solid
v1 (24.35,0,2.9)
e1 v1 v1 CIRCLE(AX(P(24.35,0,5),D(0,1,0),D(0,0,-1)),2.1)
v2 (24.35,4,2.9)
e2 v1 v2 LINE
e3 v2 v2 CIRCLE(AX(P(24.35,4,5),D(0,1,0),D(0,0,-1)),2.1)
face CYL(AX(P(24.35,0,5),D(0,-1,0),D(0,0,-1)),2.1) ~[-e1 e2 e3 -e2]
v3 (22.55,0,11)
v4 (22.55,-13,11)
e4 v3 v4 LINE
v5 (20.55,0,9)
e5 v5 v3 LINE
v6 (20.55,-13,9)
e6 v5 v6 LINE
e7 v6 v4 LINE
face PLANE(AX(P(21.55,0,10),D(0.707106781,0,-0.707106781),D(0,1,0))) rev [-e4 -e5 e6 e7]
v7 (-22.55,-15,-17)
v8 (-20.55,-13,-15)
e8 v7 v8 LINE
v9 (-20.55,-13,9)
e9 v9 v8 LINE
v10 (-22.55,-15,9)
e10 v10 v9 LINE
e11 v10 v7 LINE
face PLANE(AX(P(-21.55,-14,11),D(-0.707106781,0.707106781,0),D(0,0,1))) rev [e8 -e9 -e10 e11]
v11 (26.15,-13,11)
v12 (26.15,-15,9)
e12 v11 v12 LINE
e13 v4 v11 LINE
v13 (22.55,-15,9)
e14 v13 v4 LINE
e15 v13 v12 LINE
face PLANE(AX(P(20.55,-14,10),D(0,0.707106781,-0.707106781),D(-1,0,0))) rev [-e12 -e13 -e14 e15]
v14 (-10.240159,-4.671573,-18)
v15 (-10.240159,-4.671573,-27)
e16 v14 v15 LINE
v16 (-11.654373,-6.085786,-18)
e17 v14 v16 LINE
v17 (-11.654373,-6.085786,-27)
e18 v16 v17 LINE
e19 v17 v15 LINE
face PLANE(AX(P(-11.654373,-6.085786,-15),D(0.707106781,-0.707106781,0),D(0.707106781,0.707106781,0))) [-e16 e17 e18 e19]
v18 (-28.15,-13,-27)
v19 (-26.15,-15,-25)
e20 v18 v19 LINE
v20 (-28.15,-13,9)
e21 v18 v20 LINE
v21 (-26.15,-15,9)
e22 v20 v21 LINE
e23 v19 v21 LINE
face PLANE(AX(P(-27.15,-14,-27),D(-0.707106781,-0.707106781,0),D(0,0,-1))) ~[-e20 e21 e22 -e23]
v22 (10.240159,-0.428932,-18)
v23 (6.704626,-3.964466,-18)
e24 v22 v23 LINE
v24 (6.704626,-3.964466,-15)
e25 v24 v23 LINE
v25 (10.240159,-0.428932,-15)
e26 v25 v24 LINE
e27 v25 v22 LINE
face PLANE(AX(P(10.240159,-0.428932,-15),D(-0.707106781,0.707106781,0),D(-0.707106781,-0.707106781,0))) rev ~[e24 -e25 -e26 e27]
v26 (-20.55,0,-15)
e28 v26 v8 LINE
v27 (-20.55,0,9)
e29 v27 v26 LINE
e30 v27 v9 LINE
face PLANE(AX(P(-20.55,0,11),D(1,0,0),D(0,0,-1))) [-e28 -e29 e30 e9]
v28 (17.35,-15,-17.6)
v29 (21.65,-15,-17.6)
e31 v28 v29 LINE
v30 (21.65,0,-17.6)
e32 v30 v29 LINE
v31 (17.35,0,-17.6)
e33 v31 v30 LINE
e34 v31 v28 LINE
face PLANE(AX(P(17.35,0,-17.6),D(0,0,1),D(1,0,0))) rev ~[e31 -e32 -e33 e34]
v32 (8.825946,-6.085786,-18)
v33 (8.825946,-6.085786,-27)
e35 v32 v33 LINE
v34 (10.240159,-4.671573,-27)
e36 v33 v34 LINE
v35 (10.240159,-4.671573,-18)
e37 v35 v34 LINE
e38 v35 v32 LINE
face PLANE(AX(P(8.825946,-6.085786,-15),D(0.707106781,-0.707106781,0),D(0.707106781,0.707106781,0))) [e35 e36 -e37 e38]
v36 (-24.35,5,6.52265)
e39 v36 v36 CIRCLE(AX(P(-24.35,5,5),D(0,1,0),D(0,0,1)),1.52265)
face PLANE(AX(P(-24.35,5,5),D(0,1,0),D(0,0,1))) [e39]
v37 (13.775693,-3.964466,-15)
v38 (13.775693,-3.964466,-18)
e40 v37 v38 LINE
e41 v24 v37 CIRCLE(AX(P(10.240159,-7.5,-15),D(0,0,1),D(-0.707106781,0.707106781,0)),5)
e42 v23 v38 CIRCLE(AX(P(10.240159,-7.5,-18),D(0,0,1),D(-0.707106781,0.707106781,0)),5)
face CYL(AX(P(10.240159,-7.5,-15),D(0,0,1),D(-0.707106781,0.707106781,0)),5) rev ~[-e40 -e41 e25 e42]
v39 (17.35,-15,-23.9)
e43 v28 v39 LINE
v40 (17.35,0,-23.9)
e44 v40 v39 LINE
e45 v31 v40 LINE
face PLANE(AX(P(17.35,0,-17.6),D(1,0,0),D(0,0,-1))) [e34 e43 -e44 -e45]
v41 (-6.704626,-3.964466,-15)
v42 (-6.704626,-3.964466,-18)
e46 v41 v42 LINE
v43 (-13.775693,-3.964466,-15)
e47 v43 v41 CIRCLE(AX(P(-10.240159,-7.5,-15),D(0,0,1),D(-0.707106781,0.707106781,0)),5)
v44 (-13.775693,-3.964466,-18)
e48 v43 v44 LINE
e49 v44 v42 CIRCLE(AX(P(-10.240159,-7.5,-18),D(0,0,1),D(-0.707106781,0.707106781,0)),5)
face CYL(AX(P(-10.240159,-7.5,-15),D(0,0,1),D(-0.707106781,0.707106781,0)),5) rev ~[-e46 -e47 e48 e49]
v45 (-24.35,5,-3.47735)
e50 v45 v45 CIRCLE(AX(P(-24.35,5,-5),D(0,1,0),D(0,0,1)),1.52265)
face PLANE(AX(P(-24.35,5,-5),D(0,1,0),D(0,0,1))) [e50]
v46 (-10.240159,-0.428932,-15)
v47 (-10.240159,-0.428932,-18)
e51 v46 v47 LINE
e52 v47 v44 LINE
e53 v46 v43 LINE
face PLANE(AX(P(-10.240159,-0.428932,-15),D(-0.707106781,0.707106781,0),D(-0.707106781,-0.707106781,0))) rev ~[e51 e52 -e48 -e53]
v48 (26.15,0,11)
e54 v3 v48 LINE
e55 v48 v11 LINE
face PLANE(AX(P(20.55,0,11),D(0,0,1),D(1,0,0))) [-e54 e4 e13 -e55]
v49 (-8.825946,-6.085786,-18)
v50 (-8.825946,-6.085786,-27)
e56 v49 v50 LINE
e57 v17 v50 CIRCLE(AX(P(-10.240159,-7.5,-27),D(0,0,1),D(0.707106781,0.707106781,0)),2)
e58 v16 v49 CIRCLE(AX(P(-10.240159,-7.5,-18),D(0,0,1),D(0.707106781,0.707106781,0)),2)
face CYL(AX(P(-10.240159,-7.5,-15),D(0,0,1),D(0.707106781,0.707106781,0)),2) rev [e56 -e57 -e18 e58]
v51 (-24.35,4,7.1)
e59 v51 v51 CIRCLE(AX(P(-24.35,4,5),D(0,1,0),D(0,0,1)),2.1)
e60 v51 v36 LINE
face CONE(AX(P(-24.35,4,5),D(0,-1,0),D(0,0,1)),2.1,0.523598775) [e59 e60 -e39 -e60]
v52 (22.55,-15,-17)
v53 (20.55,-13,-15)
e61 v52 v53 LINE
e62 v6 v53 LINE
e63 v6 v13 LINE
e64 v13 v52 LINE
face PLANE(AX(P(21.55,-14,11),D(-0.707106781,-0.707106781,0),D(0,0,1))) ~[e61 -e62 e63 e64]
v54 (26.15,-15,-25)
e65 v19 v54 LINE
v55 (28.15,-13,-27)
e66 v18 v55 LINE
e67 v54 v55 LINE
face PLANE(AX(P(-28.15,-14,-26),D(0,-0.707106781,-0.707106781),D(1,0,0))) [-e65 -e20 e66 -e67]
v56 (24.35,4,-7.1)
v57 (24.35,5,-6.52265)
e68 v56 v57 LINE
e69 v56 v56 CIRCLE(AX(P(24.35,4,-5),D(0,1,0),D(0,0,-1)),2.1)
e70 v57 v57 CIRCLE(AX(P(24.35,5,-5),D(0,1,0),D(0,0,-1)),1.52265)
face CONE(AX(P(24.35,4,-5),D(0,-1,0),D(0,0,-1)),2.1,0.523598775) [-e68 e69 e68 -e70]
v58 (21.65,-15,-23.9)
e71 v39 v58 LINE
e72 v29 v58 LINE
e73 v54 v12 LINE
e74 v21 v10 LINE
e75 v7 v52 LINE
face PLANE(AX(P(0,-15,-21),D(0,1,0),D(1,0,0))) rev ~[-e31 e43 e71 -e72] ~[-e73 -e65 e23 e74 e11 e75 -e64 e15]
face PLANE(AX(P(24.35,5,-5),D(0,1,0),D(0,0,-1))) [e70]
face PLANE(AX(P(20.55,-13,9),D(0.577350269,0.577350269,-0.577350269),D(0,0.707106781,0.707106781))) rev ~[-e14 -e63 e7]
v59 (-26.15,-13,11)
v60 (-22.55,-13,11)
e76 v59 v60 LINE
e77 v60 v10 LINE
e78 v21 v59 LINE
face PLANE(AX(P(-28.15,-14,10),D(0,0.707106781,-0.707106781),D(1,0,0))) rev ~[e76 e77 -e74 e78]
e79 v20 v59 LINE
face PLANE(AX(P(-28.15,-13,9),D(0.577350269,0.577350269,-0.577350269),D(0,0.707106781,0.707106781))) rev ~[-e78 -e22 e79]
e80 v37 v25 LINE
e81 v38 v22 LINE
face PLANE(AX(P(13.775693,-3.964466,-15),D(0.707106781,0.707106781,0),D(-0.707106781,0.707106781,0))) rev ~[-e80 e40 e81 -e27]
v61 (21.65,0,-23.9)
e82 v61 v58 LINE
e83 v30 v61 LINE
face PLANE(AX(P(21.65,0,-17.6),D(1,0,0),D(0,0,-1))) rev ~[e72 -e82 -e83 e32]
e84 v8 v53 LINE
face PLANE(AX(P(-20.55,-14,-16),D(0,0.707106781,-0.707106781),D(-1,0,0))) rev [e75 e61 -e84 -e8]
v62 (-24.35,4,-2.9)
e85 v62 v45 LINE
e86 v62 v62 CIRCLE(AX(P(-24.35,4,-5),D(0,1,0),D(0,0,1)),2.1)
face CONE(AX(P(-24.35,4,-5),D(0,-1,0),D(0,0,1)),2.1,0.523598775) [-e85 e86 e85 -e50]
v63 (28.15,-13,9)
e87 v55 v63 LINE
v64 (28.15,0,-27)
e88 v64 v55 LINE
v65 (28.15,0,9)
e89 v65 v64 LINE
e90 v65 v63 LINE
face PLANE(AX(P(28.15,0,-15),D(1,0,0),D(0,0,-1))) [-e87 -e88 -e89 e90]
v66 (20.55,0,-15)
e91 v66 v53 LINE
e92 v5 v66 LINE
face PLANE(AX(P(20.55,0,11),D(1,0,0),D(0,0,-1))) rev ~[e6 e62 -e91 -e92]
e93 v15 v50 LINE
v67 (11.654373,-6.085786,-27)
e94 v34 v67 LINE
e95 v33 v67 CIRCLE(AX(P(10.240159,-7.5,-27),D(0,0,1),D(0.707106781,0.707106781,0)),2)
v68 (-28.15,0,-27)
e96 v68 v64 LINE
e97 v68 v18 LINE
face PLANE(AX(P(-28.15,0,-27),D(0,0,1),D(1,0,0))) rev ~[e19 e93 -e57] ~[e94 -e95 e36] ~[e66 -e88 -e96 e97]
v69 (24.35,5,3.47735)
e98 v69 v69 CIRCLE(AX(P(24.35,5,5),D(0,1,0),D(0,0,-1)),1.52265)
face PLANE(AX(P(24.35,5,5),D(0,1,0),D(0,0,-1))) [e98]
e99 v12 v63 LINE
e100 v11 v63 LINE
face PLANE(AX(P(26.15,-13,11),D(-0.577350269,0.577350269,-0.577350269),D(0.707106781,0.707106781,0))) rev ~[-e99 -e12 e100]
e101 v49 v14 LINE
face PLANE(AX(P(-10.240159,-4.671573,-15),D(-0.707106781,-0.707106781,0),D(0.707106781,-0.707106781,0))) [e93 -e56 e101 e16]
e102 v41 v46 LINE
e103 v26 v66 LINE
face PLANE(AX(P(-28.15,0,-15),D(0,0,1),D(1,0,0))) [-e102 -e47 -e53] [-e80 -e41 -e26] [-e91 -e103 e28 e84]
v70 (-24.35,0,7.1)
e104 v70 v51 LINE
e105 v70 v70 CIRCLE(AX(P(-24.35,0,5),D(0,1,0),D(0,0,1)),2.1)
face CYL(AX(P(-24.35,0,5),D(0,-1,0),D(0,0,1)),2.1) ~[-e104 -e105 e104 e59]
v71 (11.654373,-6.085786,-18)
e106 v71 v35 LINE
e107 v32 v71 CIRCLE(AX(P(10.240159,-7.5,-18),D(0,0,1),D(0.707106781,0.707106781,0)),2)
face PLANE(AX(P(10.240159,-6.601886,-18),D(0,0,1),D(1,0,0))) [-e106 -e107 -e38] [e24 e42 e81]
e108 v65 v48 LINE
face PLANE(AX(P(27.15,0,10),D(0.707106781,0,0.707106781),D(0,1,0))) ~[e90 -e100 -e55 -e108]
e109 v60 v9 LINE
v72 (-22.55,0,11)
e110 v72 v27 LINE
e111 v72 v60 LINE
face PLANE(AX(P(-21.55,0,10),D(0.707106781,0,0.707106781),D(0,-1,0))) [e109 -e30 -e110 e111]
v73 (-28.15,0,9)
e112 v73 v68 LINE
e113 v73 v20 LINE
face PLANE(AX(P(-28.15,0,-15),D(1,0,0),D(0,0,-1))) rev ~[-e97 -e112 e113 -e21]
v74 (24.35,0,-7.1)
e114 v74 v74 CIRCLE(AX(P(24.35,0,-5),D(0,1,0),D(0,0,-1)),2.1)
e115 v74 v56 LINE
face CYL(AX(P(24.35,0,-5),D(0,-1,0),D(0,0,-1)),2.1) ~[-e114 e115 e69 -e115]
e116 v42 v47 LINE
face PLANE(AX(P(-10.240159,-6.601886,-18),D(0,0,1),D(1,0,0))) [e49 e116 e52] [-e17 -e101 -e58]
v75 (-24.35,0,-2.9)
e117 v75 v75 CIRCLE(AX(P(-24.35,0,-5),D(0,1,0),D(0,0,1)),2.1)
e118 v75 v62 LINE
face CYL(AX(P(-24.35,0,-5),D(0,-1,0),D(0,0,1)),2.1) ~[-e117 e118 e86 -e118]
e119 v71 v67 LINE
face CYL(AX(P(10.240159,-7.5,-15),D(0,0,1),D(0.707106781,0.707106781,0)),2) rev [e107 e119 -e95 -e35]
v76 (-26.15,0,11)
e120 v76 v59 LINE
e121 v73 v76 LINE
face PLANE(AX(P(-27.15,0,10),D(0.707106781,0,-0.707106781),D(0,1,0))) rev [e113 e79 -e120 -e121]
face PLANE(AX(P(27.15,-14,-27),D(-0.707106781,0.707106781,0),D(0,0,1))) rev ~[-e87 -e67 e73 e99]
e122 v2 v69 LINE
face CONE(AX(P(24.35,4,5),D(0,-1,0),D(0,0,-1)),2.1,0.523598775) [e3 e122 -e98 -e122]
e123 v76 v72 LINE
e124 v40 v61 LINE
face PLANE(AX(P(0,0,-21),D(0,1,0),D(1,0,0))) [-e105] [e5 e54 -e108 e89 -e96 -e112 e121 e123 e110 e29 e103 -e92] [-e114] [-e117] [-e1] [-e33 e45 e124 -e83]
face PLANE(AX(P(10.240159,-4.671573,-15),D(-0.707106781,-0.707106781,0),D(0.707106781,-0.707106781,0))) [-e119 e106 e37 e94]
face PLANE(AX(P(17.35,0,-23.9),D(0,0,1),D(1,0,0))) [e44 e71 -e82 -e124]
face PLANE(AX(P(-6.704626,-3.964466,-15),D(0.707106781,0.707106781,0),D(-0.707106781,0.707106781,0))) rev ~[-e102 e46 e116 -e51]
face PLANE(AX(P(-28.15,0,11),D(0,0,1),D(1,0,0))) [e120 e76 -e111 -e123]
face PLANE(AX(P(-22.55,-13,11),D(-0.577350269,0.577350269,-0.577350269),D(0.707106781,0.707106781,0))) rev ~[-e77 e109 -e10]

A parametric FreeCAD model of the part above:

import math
import FreeCAD as App
import Part
import Sketcher

V = App.Vector


def edges_at(feature, points):
    """Names of the edges that pass closest to the given points."""
    edges = feature.Shape.Edges
    near = lambda p: min(range(len(edges)), key=lambda i: edges[i].distToShape(Part.Vertex(*p))[0])
    return sorted({f"Edge{near(p) + 1}" for p in points})

doc = App.newDocument("Part")
body = doc.addObject("PartDesign::Body", "Body")

# Sketch on XZ plane
sketch1 = body.newObject("Sketcher::SketchObject", "Sketch")
sketch1.AttachmentSupport = (doc.getObject("XZ_Plane"), [""])
sketch1.MapMode = "FlatFace"
sketch1.addGeometry(Part.Circle(V(-24.4, -5, 0), V(0, 0, 1), 2.1), False)
sketch1.addConstraint([
    Sketcher.Constraint("Diameter", 0, 4.2),
    Sketcher.Constraint("DistanceY", 0, 3, -1, 1, 5.0),
    Sketcher.Constraint("DistanceX", 0, 3, -1, 1, 24.35),
])
pad1 = body.newObject("PartDesign::Pad", "Pad")
pad1.Profile = sketch1
pad1.Length = 5
pad1.Reversed = True
body2 = doc.addObject("PartDesign::Body", "Body001")

# Sketch on XZ plane
sketch2 = body2.newObject("Sketcher::SketchObject", "Sketch001")
sketch2.AttachmentSupport = (doc.getObject("XZ_Plane001"), [""])
sketch2.MapMode = "FlatFace"
sketch2.addGeometry(Part.Circle(V(-24.4, 5, 0), V(0, 0, 1), 2.1), False)
sketch2.addConstraint([
    Sketcher.Constraint("Diameter", 0, 4.2),
    Sketcher.Constraint("DistanceY", -1, 1, 0, 3, 5.0),
    Sketcher.Constraint("DistanceX", 0, 3, -1, 1, 24.35),
])
pad2 = body2.newObject("PartDesign::Pad", "Pad001")
pad2.Profile = sketch2
pad2.Length = 5
pad2.Reversed = True
body3 = doc.addObject("PartDesign::Body", "Body002")

# Sketch on XZ plane
sketch3 = body3.newObject("Sketcher::SketchObject", "Sketch002")
sketch3.AttachmentSupport = (doc.getObject("XZ_Plane002"), [""])
sketch3.MapMode = "FlatFace"
sketch3.addGeometry(Part.Circle(V(24.4, 5, 0), V(0, 0, 1), 2.1), False)
sketch3.addConstraint([
    Sketcher.Constraint("Diameter", 0, 4.2),
    Sketcher.Constraint("DistanceY", -1, 1, 0, 3, 5.0),
    Sketcher.Constraint("DistanceX", -1, 1, 0, 3, 24.35),
])
pad3 = body3.newObject("PartDesign::Pad", "Pad002")
pad3.Profile = sketch3
pad3.Length = 5
pad3.Reversed = True
body4 = doc.addObject("PartDesign::Body", "Body003")

# Sketch on XZ plane
sketch4 = body4.newObject("Sketcher::SketchObject", "Sketch003")
sketch4.AttachmentSupport = (doc.getObject("XZ_Plane003"), [""])
sketch4.MapMode = "FlatFace"
sketch4.addGeometry(Part.Circle(V(24.4, -5, 0), V(0, 0, 1), 2.1), False)
sketch4.addConstraint([
    Sketcher.Constraint("Diameter", 0, 4.2),
    Sketcher.Constraint("DistanceY", 0, 3, -1, 1, 5.0),
    Sketcher.Constraint("DistanceX", -1, 1, 0, 3, 24.35),
])
pad4 = body4.newObject("PartDesign::Pad", "Pad003")
pad4.Profile = sketch4
pad4.Length = 5
pad4.Reversed = True
body.AllowCompound = True
doc.recompute()

boolean = body.newObject("PartDesign::Boolean", "Boolean")
boolean.Type = "Fuse"
boolean.addObjects([body2])
doc.recompute()

boolean2 = body.newObject("PartDesign::Boolean", "Boolean001")
boolean2.Type = "Fuse"
boolean2.addObjects([body3])
doc.recompute()

boolean3 = body.newObject("PartDesign::Boolean", "Boolean002")
boolean3.Type = "Fuse"
boolean3.addObjects([body4])

# Sketch on XZ plane
sketch5 = body.newObject("Sketcher::SketchObject", "Sketch004")
sketch5.AttachmentSupport = (doc.getObject("XZ_Plane"), [""])
sketch5.MapMode = "FlatFace"
sketch5.addGeometry([
    Part.LineSegment(V(-28, -15, 0), V(-28, 11, 0)),  # 0
    Part.LineSegment(V(-28, 11, 0), V(-21, 11, 0)),  # 1
    Part.LineSegment(V(-21, 11, 0), V(-21, -15, 0)),  # 2
    Part.LineSegment(V(-21, -15, 0), V(-28, -15, 0)),  # 3
    Part.LineSegment(V(21, -15, 0), V(21, 11, 0)),  # 4
    Part.LineSegment(V(21, 11, 0), V(28, 11, 0)),  # 5
    Part.LineSegment(V(28, 11, 0), V(28, -15, 0)),  # 6
    Part.LineSegment(V(28, -15, 0), V(21, -15, 0)),  # 7
], False)
sketch5.addConstraint([
    Sketcher.Constraint("Coincident", 0, 2, 1, 1),
    Sketcher.Constraint("Coincident", 1, 2, 2, 1),
    Sketcher.Constraint("Coincident", 2, 2, 3, 1),
    Sketcher.Constraint("Coincident", 3, 2, 0, 1),
    Sketcher.Constraint("Coincident", 4, 2, 5, 1),
    Sketcher.Constraint("Coincident", 5, 2, 6, 1),
    Sketcher.Constraint("Coincident", 6, 2, 7, 1),
    Sketcher.Constraint("Coincident", 7, 2, 4, 1),
    Sketcher.Constraint("Vertical", 0),
    Sketcher.Constraint("Horizontal", 1),
    Sketcher.Constraint("Vertical", 2),
    Sketcher.Constraint("Horizontal", 3),
    Sketcher.Constraint("Vertical", 4),
    Sketcher.Constraint("Horizontal", 5),
    Sketcher.Constraint("Vertical", 6),
    Sketcher.Constraint("Horizontal", 7),
    Sketcher.Constraint("Symmetric", 1, 2, 4, 2, -2),
    Sketcher.Constraint("Symmetric", 3, 2, 6, 2, -2),
    Sketcher.Constraint("DistanceY", 0, 1, 0, 2, 26.0),
    Sketcher.Constraint("DistanceX", 1, 1, 1, 2, 7.6),
    Sketcher.Constraint("DistanceY", -1, 1, 0, 2, 11.0),
    Sketcher.Constraint("DistanceX", 1, 2, 4, 2, 41.1),
])
pad5 = body.newObject("PartDesign::Pad", "Pad004")
pad5.Profile = sketch5
pad5.Length = 15
doc.recompute()

chamfer = body.newObject("PartDesign::Chamfer", "Chamfer")
chamfer.Base = (pad5, edges_at(pad5, [(-24.35, 5, 2.9)]))
chamfer.ChamferType = "Two distances"
chamfer.Size = 1
chamfer.Size2 = 0.57735
doc.recompute()

chamfer2 = body.newObject("PartDesign::Chamfer", "Chamfer001")
chamfer2.Base = (chamfer, edges_at(chamfer, [(-24.35, 5, -7.1)]))
chamfer2.ChamferType = "Two distances"
chamfer2.Size = 1
chamfer2.Size2 = 0.57735
doc.recompute()

chamfer3 = body.newObject("PartDesign::Chamfer", "Chamfer002")
chamfer3.Base = (chamfer2, edges_at(chamfer2, [(24.35, 5, -2.9)]))
chamfer3.ChamferType = "Two distances"
chamfer3.Size = 1
chamfer3.Size2 = 0.57735
doc.recompute()

chamfer4 = body.newObject("PartDesign::Chamfer", "Chamfer003")
chamfer4.Base = (chamfer3, edges_at(chamfer3, [(24.35, 5, 7.1)]))
chamfer4.ChamferType = "Two distances"
chamfer4.Size = 1
chamfer4.Size2 = 0.57735

# Sketch on XZ plane
sketch6 = body.newObject("Sketcher::SketchObject", "Sketch005")
sketch6.AttachmentSupport = (doc.getObject("XZ_Plane"), [""])
sketch6.MapMode = "FlatFace"
sketch6.addGeometry([
    Part.LineSegment(V(-28, -27, 0), V(-28, -15, 0)),
    Part.LineSegment(V(-28, -15, 0), V(28, -15, 0)),
    Part.LineSegment(V(28, -15, 0), V(28, -27, 0)),
    Part.LineSegment(V(28, -27, 0), V(-28, -27, 0)),
], False)
sketch6.addConstraint([
    Sketcher.Constraint("Coincident", 0, 2, 1, 1),
    Sketcher.Constraint("Coincident", 1, 2, 2, 1),
    Sketcher.Constraint("Coincident", 2, 2, 3, 1),
    Sketcher.Constraint("Coincident", 3, 2, 0, 1),
    Sketcher.Constraint("Vertical", 0),
    Sketcher.Constraint("Horizontal", 1),
    Sketcher.Constraint("Vertical", 2),
    Sketcher.Constraint("Horizontal", 3),
    Sketcher.Constraint("DistanceY", 0, 1, 0, 2, 12.0),
    Sketcher.Constraint("DistanceX", 1, 1, 1, 2, 56.3),
    Sketcher.Constraint("DistanceY", 0, 2, -1, 1, 15.0),
    Sketcher.Constraint("DistanceX", 0, 2, -1, 1, 28.15),
])
pad6 = body.newObject("PartDesign::Pad", "Pad005")
pad6.Profile = sketch6
pad6.Length = 15

# Sketch on XY plane
sketch7 = body.newObject("Sketcher::SketchObject", "Sketch006")
sketch7.AttachmentSupport = (doc.getObject("XY_Plane"), [""])
sketch7.MapMode = "FlatFace"
sketch7.AttachmentOffset = App.Placement(V(0, 0, -15), App.Rotation())
sketch7.addGeometry([
    Part.LineSegment(V(-10.2, -4.7, 0), V(-11.7, -6.1, 0)),  # 0
    Part.ArcOfCircle(Part.Circle(V(-10.2, -7.5, 0), V(0, 0, 1), 2), math.radians(135), math.radians(405)),  # 1
    Part.LineSegment(V(-8.8, -6.1, 0), V(-10.2, -4.7, 0)),  # 2
    Part.ArcOfCircle(Part.Circle(V(10.2, -7.5, 0), V(0, 0, 1), 2), math.radians(135), math.radians(405)),  # 3
    Part.LineSegment(V(11.7, -6.1, 0), V(10.2, -4.7, 0)),  # 4
    Part.LineSegment(V(10.2, -4.7, 0), V(8.8, -6.1, 0)),  # 5
], False)
sketch7.addConstraint([
    Sketcher.Constraint("Tangent", 0, 2, 1, 1),
    Sketcher.Constraint("Tangent", 1, 2, 2, 1),
    Sketcher.Constraint("Coincident", 2, 2, 0, 1),
    Sketcher.Constraint("Tangent", 3, 2, 4, 1),
    Sketcher.Constraint("Coincident", 4, 2, 5, 1),
    Sketcher.Constraint("Tangent", 5, 2, 3, 1),
    Sketcher.Constraint("Equal", 1, 3),
    Sketcher.Constraint("Symmetric", 1, 3, 3, 3, -2),
    Sketcher.Constraint("Symmetric", 2, 2, 4, 2, -2),
    Sketcher.Constraint("Perpendicular", 0, 2),
    Sketcher.Constraint("Parallel", 2, 4),
    Sketcher.Constraint("Radius", 1, 2.0),
    Sketcher.Constraint("DistanceY", 1, 3, -1, 1, 7.5),
    Sketcher.Constraint("DistanceX", 1, 3, -1, 1, 10.240159),
])
pocket1 = body.newObject("PartDesign::Pocket", "Pocket")
pocket1.Profile = sketch7
pocket1.Type = "ThroughAll"

# Sketch on XY plane
sketch8 = body.newObject("Sketcher::SketchObject", "Sketch007")
sketch8.AttachmentSupport = (doc.getObject("XY_Plane"), [""])
sketch8.MapMode = "FlatFace"
sketch8.AttachmentOffset = App.Placement(V(0, 0, -15), App.Rotation())
sketch8.addGeometry([
    Part.LineSegment(V(-7, -4, 0), V(-10, 0, 0)),  # 0
    Part.LineSegment(V(-10, 0, 0), V(-14, -4, 0)),  # 1
    Part.ArcOfCircle(Part.Circle(V(-10, -8, 0), V(0, 0, 1), 5), math.radians(135), math.radians(405)),  # 2
    Part.LineSegment(V(14, -4, 0), V(10, 0, 0)),  # 3
    Part.LineSegment(V(10, 0, 0), V(7, -4, 0)),  # 4
    Part.ArcOfCircle(Part.Circle(V(10, -8, 0), V(0, 0, 1), 5), math.radians(135), math.radians(405)),  # 5
], False)
sketch8.addConstraint([
    Sketcher.Constraint("Coincident", 0, 2, 1, 1),
    Sketcher.Constraint("Tangent", 1, 2, 2, 1),
    Sketcher.Constraint("Tangent", 2, 2, 0, 1),
    Sketcher.Constraint("Coincident", 3, 2, 4, 1),
    Sketcher.Constraint("Tangent", 4, 2, 5, 1),
    Sketcher.Constraint("Tangent", 5, 2, 3, 1),
    Sketcher.Constraint("Equal", 2, 5),
    Sketcher.Constraint("Symmetric", 2, 3, 5, 3, -2),
    Sketcher.Constraint("Symmetric", 0, 2, 3, 2, -2),
    Sketcher.Constraint("Perpendicular", 0, 1),
    Sketcher.Constraint("Perpendicular", 1, 3),
    Sketcher.Constraint("Radius", 2, 5.0),
    Sketcher.Constraint("DistanceY", 2, 3, -1, 1, 7.5),
    Sketcher.Constraint("DistanceX", 2, 3, -1, 1, 10.240159),
])
pocket2 = body.newObject("PartDesign::Pocket", "Pocket001")
pocket2.Profile = sketch8
pocket2.Length = 3
doc.recompute()

chamfer5 = body.newObject("PartDesign::Chamfer", "Chamfer004")
chamfer5.Base = (pocket2, edges_at(pocket2, [
    (0, -15, -15),
    (28.15, -15, -8),
    (0, -15, -27),
    (24.35, -15, 11),
    (28.15, -7.5, 11),
    (20.55, -15, -2),
    (20.55, -7.5, 11),
    (-20.55, -15, -2),
    (-24.35, -15, 11),
    (-20.55, -7.5, 11),
    (-28.15, -15, -8),
    (-28.15, -7.5, 11),
]))
chamfer5.Size = 2

# Sketch on XZ plane
sketch9 = body.newObject("Sketcher::SketchObject", "Sketch008")
sketch9.AttachmentSupport = (doc.getObject("XZ_Plane"), [""])
sketch9.MapMode = "FlatFace"
sketch9.addGeometry([
    Part.LineSegment(V(17.4, -23.9, 0), V(17.4, -17.6, 0)),
    Part.LineSegment(V(17.4, -17.6, 0), V(21.6, -17.6, 0)),
    Part.LineSegment(V(21.6, -17.6, 0), V(21.6, -23.9, 0)),
    Part.LineSegment(V(21.6, -23.9, 0), V(17.4, -23.9, 0)),
], False)
sketch9.addConstraint([
    Sketcher.Constraint("Coincident", 0, 2, 1, 1),
    Sketcher.Constraint("Coincident", 1, 2, 2, 1),
    Sketcher.Constraint("Coincident", 2, 2, 3, 1),
    Sketcher.Constraint("Coincident", 3, 2, 0, 1),
    Sketcher.Constraint("Vertical", 0),
    Sketcher.Constraint("Horizontal", 1),
    Sketcher.Constraint("Vertical", 2),
    Sketcher.Constraint("Horizontal", 3),
    Sketcher.Constraint("DistanceX", 1, 1, 1, 2, 4.3),
    Sketcher.Constraint("DistanceY", 0, 1, 0, 2, 6.3),
    Sketcher.Constraint("DistanceY", 0, 2, -1, 1, 17.6),
    Sketcher.Constraint("DistanceX", -1, 1, 0, 2, 17.35),
])
pocket3 = body.newObject("PartDesign::Pocket", "Pocket002")
pocket3.Profile = sketch9
pocket3.Type = "ThroughAll"
pocket3.Reversed = True

doc.recompute()
